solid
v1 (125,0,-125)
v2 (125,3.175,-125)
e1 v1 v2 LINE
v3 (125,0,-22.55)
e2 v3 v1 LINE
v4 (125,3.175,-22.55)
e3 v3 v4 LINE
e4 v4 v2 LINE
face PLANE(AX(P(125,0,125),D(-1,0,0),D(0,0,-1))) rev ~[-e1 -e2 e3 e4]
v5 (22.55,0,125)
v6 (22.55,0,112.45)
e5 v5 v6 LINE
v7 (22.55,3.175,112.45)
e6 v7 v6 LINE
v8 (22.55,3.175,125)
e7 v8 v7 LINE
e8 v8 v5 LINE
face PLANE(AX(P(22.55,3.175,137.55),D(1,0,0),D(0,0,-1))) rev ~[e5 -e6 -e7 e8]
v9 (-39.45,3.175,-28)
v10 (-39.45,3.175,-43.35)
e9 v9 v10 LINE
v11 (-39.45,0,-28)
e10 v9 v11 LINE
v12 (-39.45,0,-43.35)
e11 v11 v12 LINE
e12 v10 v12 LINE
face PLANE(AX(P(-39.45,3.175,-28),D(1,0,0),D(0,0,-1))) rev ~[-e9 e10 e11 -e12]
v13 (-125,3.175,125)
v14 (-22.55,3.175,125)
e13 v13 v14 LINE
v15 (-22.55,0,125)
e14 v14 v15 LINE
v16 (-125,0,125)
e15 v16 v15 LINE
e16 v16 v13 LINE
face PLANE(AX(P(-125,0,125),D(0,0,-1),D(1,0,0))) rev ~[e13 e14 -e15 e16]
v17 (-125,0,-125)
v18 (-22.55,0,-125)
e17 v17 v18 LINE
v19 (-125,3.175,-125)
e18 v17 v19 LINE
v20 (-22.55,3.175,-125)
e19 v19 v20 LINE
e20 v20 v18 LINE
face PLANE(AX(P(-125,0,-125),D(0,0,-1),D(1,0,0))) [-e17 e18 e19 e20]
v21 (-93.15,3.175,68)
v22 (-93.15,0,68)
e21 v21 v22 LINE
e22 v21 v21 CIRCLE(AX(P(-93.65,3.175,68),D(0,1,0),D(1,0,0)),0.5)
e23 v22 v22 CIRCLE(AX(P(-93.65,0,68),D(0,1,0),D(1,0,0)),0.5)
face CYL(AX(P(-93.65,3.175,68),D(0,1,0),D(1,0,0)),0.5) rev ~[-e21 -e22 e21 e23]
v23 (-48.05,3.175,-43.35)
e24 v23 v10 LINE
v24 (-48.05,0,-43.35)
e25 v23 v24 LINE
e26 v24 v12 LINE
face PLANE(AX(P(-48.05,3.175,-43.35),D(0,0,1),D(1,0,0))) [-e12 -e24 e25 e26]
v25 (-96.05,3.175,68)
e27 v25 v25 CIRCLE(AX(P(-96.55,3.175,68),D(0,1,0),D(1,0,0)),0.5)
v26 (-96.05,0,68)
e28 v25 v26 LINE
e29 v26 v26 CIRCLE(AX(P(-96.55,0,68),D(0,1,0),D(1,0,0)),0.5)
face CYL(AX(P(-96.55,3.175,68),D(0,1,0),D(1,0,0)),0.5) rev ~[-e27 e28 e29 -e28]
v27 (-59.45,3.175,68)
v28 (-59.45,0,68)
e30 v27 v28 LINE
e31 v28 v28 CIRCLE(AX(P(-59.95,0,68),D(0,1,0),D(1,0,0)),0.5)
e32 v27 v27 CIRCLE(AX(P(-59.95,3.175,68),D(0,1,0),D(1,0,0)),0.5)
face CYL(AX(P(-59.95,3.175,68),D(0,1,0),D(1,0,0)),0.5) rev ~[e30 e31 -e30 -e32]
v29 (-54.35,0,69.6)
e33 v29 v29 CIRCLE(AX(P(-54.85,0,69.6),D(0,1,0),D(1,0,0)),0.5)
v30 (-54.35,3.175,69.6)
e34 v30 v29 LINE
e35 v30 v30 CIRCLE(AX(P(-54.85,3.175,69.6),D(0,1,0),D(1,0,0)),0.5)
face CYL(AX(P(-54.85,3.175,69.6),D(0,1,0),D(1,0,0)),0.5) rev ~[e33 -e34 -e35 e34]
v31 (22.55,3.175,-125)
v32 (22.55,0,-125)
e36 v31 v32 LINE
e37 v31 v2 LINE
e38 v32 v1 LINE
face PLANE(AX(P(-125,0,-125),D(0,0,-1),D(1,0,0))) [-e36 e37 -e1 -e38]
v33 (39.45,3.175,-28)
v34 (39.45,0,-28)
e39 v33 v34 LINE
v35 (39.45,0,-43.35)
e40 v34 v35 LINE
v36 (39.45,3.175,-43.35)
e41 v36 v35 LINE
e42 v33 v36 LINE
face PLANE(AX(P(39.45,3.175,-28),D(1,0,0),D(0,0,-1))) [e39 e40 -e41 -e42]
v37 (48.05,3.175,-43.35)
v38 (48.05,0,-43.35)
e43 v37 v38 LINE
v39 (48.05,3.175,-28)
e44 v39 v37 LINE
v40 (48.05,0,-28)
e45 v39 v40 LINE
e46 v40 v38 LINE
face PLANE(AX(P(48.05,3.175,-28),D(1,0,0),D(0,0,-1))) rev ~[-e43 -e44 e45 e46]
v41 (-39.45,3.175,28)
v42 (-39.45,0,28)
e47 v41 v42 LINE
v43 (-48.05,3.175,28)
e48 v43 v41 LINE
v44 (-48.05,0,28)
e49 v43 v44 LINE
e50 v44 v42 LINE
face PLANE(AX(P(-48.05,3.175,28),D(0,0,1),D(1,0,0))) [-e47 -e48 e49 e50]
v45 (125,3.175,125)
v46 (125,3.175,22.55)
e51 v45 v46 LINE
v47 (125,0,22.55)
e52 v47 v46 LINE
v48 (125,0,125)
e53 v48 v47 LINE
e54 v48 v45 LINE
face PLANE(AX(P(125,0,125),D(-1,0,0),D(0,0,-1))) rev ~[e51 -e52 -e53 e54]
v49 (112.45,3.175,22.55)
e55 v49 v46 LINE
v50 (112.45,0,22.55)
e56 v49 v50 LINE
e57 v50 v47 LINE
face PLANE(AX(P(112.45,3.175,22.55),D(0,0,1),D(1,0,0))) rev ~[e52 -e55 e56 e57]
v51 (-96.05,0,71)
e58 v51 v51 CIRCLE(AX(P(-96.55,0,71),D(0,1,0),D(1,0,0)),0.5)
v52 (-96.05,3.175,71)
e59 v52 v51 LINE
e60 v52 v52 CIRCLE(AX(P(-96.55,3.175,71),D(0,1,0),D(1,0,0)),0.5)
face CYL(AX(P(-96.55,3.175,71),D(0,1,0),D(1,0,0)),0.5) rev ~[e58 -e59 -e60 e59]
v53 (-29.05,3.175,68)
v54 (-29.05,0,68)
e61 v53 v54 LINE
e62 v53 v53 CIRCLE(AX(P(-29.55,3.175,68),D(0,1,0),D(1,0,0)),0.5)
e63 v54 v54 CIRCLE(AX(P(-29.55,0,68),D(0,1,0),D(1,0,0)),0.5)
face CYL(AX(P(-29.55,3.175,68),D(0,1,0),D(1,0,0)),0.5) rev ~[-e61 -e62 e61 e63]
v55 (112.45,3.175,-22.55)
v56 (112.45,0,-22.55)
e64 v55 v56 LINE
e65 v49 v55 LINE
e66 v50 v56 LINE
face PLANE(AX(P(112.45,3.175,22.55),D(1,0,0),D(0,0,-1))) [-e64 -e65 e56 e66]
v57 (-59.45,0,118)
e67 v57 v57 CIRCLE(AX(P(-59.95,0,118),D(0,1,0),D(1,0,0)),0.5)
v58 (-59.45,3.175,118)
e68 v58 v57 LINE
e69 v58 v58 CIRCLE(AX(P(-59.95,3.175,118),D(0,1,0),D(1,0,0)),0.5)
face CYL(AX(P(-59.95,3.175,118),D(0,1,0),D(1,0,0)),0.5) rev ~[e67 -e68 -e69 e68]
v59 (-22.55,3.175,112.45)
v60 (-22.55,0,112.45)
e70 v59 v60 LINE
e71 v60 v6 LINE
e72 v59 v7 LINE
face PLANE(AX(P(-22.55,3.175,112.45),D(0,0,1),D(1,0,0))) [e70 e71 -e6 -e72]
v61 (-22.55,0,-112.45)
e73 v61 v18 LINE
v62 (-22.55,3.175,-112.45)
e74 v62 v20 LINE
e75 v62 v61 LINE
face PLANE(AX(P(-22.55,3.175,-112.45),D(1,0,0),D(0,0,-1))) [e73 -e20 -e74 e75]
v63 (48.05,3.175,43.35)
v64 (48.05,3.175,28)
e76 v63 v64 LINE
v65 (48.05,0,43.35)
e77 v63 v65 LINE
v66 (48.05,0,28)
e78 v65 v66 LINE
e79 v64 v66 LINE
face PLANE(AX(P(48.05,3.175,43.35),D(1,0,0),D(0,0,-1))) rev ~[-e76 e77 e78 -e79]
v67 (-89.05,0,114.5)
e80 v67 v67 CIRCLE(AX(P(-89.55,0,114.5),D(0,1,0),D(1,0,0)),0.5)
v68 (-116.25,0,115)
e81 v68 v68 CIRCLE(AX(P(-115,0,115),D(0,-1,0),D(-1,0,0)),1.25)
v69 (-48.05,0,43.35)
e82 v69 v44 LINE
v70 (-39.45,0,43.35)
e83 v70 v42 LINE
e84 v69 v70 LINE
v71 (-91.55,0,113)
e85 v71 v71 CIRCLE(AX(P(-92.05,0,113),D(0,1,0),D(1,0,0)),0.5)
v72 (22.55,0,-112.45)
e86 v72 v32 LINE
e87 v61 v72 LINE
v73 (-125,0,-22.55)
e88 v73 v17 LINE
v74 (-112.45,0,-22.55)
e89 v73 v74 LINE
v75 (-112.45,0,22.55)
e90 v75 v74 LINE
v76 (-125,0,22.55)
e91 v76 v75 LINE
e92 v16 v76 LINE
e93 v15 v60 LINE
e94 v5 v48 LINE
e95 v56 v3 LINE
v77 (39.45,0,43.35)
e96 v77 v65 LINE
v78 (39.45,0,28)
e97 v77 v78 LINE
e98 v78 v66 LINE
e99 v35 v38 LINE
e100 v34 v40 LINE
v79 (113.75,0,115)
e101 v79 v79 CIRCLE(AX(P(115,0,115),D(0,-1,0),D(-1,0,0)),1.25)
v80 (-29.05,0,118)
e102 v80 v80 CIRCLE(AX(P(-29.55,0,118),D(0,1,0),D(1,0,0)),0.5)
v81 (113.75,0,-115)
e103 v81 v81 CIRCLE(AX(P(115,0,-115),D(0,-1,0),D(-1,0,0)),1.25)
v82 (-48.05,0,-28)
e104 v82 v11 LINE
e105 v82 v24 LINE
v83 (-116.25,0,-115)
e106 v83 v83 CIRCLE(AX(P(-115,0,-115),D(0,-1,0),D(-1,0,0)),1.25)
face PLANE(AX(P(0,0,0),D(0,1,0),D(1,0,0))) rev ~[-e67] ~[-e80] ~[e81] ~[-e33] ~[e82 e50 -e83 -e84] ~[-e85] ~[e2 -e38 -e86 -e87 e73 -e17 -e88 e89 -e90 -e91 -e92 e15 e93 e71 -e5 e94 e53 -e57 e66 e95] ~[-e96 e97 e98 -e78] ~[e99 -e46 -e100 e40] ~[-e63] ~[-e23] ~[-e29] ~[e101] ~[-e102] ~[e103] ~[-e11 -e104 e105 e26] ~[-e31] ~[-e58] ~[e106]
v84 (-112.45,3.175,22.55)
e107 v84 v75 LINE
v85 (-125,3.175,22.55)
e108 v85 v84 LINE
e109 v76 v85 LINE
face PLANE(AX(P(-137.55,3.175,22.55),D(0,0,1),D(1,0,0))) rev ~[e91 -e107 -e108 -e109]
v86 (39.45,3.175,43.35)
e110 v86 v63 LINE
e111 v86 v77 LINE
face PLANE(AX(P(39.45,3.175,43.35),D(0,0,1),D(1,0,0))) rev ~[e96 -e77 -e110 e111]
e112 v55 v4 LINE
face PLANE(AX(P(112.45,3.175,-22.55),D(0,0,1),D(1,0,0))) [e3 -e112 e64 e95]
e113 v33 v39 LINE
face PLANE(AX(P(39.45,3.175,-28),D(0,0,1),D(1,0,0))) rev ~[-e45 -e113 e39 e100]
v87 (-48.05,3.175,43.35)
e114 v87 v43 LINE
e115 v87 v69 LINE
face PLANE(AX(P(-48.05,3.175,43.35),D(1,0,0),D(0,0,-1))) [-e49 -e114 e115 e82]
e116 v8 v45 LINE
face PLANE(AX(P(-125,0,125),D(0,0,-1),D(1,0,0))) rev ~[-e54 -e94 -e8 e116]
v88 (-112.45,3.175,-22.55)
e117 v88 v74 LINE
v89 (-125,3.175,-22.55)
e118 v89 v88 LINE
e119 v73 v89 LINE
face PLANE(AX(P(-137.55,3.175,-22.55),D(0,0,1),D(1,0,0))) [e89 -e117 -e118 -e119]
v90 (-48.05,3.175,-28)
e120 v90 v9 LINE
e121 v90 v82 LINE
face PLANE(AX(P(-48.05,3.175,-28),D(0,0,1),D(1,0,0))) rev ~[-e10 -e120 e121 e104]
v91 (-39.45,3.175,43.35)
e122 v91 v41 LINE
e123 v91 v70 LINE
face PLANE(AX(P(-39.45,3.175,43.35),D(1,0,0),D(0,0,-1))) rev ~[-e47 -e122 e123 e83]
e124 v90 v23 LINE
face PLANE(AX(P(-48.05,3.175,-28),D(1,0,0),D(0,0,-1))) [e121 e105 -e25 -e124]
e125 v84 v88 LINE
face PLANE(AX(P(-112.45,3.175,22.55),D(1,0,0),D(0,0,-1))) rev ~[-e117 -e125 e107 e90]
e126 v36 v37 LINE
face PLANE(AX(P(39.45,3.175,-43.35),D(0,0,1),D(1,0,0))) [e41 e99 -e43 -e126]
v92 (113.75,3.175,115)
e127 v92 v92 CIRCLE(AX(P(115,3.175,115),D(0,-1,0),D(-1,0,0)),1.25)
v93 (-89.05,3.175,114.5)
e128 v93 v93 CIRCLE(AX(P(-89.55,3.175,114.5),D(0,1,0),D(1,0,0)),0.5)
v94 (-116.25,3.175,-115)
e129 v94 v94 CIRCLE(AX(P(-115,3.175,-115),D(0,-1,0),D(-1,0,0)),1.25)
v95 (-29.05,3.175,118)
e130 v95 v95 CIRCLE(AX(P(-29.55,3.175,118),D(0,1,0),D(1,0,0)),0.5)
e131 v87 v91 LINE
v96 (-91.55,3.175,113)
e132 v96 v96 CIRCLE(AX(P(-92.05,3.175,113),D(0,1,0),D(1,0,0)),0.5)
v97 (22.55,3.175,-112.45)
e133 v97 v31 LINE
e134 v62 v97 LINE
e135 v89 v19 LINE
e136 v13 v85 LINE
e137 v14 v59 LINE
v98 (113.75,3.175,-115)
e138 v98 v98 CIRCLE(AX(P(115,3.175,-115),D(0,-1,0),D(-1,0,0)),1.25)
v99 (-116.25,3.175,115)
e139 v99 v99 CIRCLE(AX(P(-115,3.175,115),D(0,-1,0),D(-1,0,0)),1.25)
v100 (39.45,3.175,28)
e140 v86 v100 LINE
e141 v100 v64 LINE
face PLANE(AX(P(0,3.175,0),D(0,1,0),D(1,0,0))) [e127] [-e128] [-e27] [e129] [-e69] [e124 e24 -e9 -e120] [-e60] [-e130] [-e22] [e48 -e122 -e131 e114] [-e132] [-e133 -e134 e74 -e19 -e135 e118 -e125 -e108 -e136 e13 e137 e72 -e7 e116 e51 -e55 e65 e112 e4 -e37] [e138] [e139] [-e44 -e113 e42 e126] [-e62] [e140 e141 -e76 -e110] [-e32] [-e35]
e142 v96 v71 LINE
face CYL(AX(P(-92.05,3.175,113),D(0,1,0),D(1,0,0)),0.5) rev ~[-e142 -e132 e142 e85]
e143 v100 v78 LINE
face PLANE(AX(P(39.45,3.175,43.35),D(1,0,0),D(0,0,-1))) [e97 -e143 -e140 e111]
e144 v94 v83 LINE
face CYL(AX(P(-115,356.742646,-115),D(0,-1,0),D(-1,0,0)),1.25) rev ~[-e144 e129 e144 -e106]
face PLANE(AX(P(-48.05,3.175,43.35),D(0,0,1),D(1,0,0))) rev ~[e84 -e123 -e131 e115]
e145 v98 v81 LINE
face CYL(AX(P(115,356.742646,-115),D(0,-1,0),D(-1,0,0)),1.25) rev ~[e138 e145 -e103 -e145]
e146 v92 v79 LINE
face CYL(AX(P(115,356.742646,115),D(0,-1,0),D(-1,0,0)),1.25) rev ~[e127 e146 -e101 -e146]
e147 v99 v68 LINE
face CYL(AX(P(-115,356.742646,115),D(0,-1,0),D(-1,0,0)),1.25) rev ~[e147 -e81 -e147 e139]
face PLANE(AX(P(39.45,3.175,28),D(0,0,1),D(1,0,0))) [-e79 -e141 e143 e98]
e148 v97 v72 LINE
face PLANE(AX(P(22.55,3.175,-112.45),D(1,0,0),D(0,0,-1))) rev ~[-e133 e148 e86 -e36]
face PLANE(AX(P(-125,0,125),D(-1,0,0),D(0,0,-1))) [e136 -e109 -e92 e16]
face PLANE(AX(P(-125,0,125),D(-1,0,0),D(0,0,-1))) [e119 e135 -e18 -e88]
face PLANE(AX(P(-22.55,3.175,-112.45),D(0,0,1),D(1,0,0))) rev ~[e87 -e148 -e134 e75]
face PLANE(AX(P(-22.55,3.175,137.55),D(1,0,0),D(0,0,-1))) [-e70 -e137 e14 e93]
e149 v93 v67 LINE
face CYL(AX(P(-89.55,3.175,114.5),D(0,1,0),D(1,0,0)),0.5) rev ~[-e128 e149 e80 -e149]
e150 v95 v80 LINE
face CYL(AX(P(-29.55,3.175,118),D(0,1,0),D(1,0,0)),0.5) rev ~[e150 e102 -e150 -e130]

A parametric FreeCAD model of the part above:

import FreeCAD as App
import Part
import Sketcher
from FreeCAD import Vector


def add_polygon(sketch, points):
    """Adds a closed chain of lines whose ends are joined by coincident constraints."""
    first, n = sketch.GeometryCount, len(points)
    for a, b in zip(points, points[1:] + points[:1]):
        sketch.addGeometry(Part.LineSegment(App.Vector(*a, 0), App.Vector(*b, 0)), False)
    for i in range(n):
        sketch.addConstraint(Sketcher.Constraint("Coincident", first + i, 2, first + (i + 1) % n, 1))

doc = App.newDocument("Part")
body = doc.addObject("PartDesign::Body", "Body")

sketch1 = body.newObject("Sketcher::SketchObject", "Sketch")
sketch1.AttachmentSupport = (doc.getObject("XZ_Plane"), [""])
sketch1.MapMode = "FlatFace"
add_polygon(sketch1, [(-125, -125), (-125, 125), (125, 125), (125, -125)])
sketch1.addConstraint([
    Sketcher.Constraint("Vertical", 0),
    Sketcher.Constraint("Horizontal", 1),
    Sketcher.Constraint("Vertical", 2),
    Sketcher.Constraint("Horizontal", 3),
    Sketcher.Constraint("Symmetric", 0, 2, 2, 2, -1, 1),
    Sketcher.Constraint("Equal", 3, 0),
    Sketcher.Constraint("DistanceX", 1, 1, 1, 2, 250.0),
])
pad1 = body.newObject("PartDesign::Pad", "Pad")
pad1.Profile = sketch1
pad1.Length = 3.175
pad1.Reversed = True

sketch2 = body.newObject("Sketcher::SketchObject", "Sketch001")
sketch2.AttachmentSupport = (doc.getObject("XZ_Plane"), [""])
sketch2.MapMode = "FlatFace"
sketch2.AttachmentOffset = App.Placement(Vector(0, 0, -3.175), App.Rotation())
add_polygon(sketch2, [(-48.05, -43.35), (-48.05, -28), (-39.45, -28), (-39.45, -43.35)])
add_polygon(sketch2, [(-48.05, 28), (-48.05, 43.35), (-39.45, 43.35), (-39.45, 28)])
add_polygon(sketch2, [(39.45, 28), (39.45, 43.35), (48.05, 43.35), (48.05, 28)])
add_polygon(sketch2, [(39.45, -43.35), (39.45, -28), (48.05, -28), (48.05, -43.35)])
sketch2.addConstraint([
    Sketcher.Constraint("Vertical", 0),
    Sketcher.Constraint("Horizontal", 1),
    Sketcher.Constraint("Vertical", 2),
    Sketcher.Constraint("Horizontal", 3),
    Sketcher.Constraint("Vertical", 4),
    Sketcher.Constraint("Horizontal", 5),
    Sketcher.Constraint("Vertical", 6),
    Sketcher.Constraint("Horizontal", 7),
    Sketcher.Constraint("Vertical", 8),
    Sketcher.Constraint("Horizontal", 9),
    Sketcher.Constraint("Vertical", 10),
    Sketcher.Constraint("Horizontal", 11),
    Sketcher.Constraint("Vertical", 12),
    Sketcher.Constraint("Horizontal", 13),
    Sketcher.Constraint("Vertical", 14),
    Sketcher.Constraint("Horizontal", 15),
    Sketcher.Constraint("Symmetric", 2, 2, 8, 2, -1, 1),
    Sketcher.Constraint("Symmetric", 0, 2, 10, 2, -1, 1),
    Sketcher.Constraint("Symmetric", 6, 2, 12, 2, -1, 1),
    Sketcher.Constraint("Symmetric", 4, 2, 14, 2, -1, 1),
    Sketcher.Constraint("Symmetric", 5, 2, 8, 2, -2),
    Sketcher.Constraint("Symmetric", 7, 2, 10, 2, -2),
    Sketcher.Constraint("DistanceX", 1, 1, 1, 2, 8.6),
    Sketcher.Constraint("DistanceY", 0, 2, -1, 1, 28.0),
    Sketcher.Constraint("DistanceY", 0, 1, 0, 2, 15.35),
    Sketcher.Constraint("DistanceX", 5, 2, 8, 2, 78.9),
])
pocket1 = body.newObject("PartDesign::Pocket", "Pocket")
pocket1.Profile = sketch2
pocket1.Length = 10
pocket1.Reversed = True

sketch3 = body.newObject("Sketcher::SketchObject", "Sketch002")
sketch3.AttachmentSupport = (doc.getObject("XZ_Plane"), [""])
sketch3.MapMode = "FlatFace"
sketch3.AttachmentOffset = App.Placement(Vector(0, 0, -3.175), App.Rotation())
add_polygon(sketch3, [(-22.55, -137.55), (-22.55, -112.45), (22.55, -112.45), (22.55, -137.55)])
add_polygon(sketch3, [(112.45, -22.55), (112.45, 22.55), (137.55, 22.55), (137.55, -22.55)])
add_polygon(sketch3, [(-22.55, 112.45), (-22.55, 137.55), (22.55, 137.55), (22.55, 112.45)])
add_polygon(sketch3, [(-137.55, -22.55), (-137.55, 22.55), (-112.45, 22.55), (-112.45, -22.55)])
sketch3.addConstraint([
    Sketcher.Constraint("Vertical", 0),
    Sketcher.Constraint("Horizontal", 1),
    Sketcher.Constraint("Vertical", 2),
    Sketcher.Constraint("Horizontal", 3),
    Sketcher.Constraint("Vertical", 4),
    Sketcher.Constraint("Horizontal", 5),
    Sketcher.Constraint("Vertical", 6),
    Sketcher.Constraint("Horizontal", 7),
    Sketcher.Constraint("Vertical", 8),
    Sketcher.Constraint("Horizontal", 9),
    Sketcher.Constraint("Vertical", 10),
    Sketcher.Constraint("Horizontal", 11),
    Sketcher.Constraint("Vertical", 12),
    Sketcher.Constraint("Horizontal", 13),
    Sketcher.Constraint("Vertical", 14),
    Sketcher.Constraint("Horizontal", 15),
    Sketcher.Constraint("Symmetric", 2, 2, 8, 2, -1, 1),
    Sketcher.Constraint("Symmetric", 0, 2, 10, 2, -1, 1),
    Sketcher.Constraint("Symmetric", 6, 2, 12, 2, -1, 1),
    Sketcher.Constraint("Symmetric", 4, 2, 14, 2, -1, 1),
    Sketcher.Constraint("Horizontal", 5, 2, 12, 2),
    Sketcher.Constraint("Vertical", 3, 2, 8, 2),
    Sketcher.Constraint("Equal", 15, 0),
    Sketcher.Constraint("Equal", 11, 4),
    Sketcher.Constraint("DistanceX", 1, 1, 1, 2, 45.1),
    Sketcher.Constraint("DistanceX", 5, 1, 5, 2, 25.1),
    Sketcher.Constraint("DistanceY", 1, 2, 4, 2, 135.0),
    Sketcher.Constraint("DistanceX", 0, 2, 4, 2, 135.0),
])
pocket2 = body.newObject("PartDesign::Pocket", "Pocket001")
pocket2.Profile = sketch3
pocket2.Length = 10
pocket2.Reversed = True

sketch4 = body.newObject("Sketcher::SketchObject", "Sketch003")
sketch4.AttachmentSupport = (doc.getObject("XZ_Plane"), [""])
sketch4.MapMode = "FlatFace"
sketch4.AttachmentOffset = App.Placement(Vector(0, 0, -3.175), App.Rotation())
sketch4.addGeometry(Part.Circle(Vector(-115, -115, 0), Vector(0, 0, 1), 1.25), False)
sketch4.addConstraint([
    Sketcher.Constraint("Diameter", 0, 2.5),
    Sketcher.Constraint("DistanceX", 0, 3, -1, 1, 115.0),
    Sketcher.Constraint("DistanceY", 0, 3, -1, 1, 115.0),
])
doc.recompute()
hole = body.newObject("PartDesign::Hole", "Hole")
hole.Profile = sketch4
hole.ThreadType = "None"
hole.Diameter = 2.5
hole.DepthType = "ThroughAll"
hole.Reversed = True

sketch5 = body.newObject("Sketcher::SketchObject", "Sketch004")
sketch5.AttachmentSupport = (doc.getObject("XZ_Plane"), [""])
sketch5.MapMode = "FlatFace"
sketch5.AttachmentOffset = App.Placement(Vector(0, 0, -3.175), App.Rotation())
sketch5.addGeometry([
    Part.Circle(Vector(115, -115, 0), Vector(0, 0, 1), 1.25),
    Part.Circle(Vector(115, 115, 0), Vector(0, 0, 1), 1.25),
    Part.Circle(Vector(-115, 115, 0), Vector(0, 0, 1), 1.25),
], False)
sketch5.addConstraint([
    Sketcher.Constraint("Equal", 0, 1),
    Sketcher.Constraint("Equal", 1, 2),
    Sketcher.Constraint("Symmetric", 0, 3, 2, 3, -1, 1),
    Sketcher.Constraint("Symmetric", 1, 3, 2, 3, -2),
    Sketcher.Constraint("Diameter", 0, 2.5),
    Sketcher.Constraint("DistanceX", -1, 1, 0, 3, 115.0),
    Sketcher.Constraint("DistanceY", 0, 3, -1, 1, 115.0),
])
doc.recompute()
hole2 = body.newObject("PartDesign::Hole", "Hole001")
hole2.Profile = sketch5
hole2.ThreadType = "None"
hole2.Diameter = 2.5
hole2.DepthType = "ThroughAll"
hole2.Reversed = True

sketch6 = body.newObject("Sketcher::SketchObject", "Sketch005")
sketch6.AttachmentSupport = (doc.getObject("XZ_Plane"), [""])
sketch6.MapMode = "FlatFace"
sketch6.AttachmentOffset = App.Placement(Vector(0, 0, -3.175), App.Rotation())
sketch6.addGeometry([
    Part.Circle(Vector(-92.05, 113, 0), Vector(0, 0, 1), 0.5),
    Part.Circle(Vector(-89.55, 114.5, 0), Vector(0, 0, 1), 0.5),
    Part.Circle(Vector(-59.95, 118, 0), Vector(0, 0, 1), 0.5),
    Part.Circle(Vector(-29.55, 118, 0), Vector(0, 0, 1), 0.5),
    Part.Circle(Vector(-29.55, 68, 0), Vector(0, 0, 1), 0.5),
    Part.Circle(Vector(-54.85, 69.6, 0), Vector(0, 0, 1), 0.5),
    Part.Circle(Vector(-59.95, 68, 0), Vector(0, 0, 1), 0.5),
    Part.Circle(Vector(-96.55, 68, 0), Vector(0, 0, 1), 0.5),
    Part.Circle(Vector(-93.65, 68, 0), Vector(0, 0, 1), 0.5),
    Part.Circle(Vector(-96.55, 71, 0), Vector(0, 0, 1), 0.5),
], False)
sketch6.addConstraint([
    Sketcher.Constraint("Equal", 0, 1),
    Sketcher.Constraint("Equal", 1, 2),
    Sketcher.Constraint("Equal", 2, 3),
    Sketcher.Constraint("Equal", 3, 4),
    Sketcher.Constraint("Equal", 4, 5),
    Sketcher.Constraint("Equal", 5, 6),
    Sketcher.Constraint("Equal", 6, 7),
    Sketcher.Constraint("Equal", 7, 8),
    Sketcher.Constraint("Equal", 8, 9),
    Sketcher.Constraint("Horizontal", 2, 3, 3, 3),
    Sketcher.Constraint("Horizontal", 4, 3, 6, 3),
    Sketcher.Constraint("Horizontal", 6, 3, 7, 3),
    Sketcher.Constraint("Horizontal", 7, 3, 8, 3),
    Sketcher.Constraint("Vertical", 3, 3, 4, 3),
    Sketcher.Constraint("Vertical", 2, 3, 6, 3),
    Sketcher.Constraint("Vertical", 7, 3, 9, 3),
    Sketcher.Constraint("Diameter", 0, 1.0),
    Sketcher.Constraint("DistanceY", -1, 1, 0, 3, 113.0),
    Sketcher.Constraint("DistanceY", -1, 1, 2, 3, 118.0),
    Sketcher.Constraint("DistanceY", -1, 1, 4, 3, 68.0),
    Sketcher.Constraint("DistanceY", -1, 1, 9, 3, 71.0),
    Sketcher.Constraint("DistanceX", 1, 3, 3, 3, 60.0),
    Sketcher.Constraint("DistanceX", 7, 3, 1, 3, 7.0),
    Sketcher.Constraint("DistanceY", -1, 1, 1, 3, 114.5),
    Sketcher.Constraint("DistanceY", -1, 1, 5, 3, 69.6),
    Sketcher.Constraint("DistanceX", 0, 3, 1, 3, 2.5),
    Sketcher.Constraint("DistanceX", 1, 3, 2, 3, 29.6),
    Sketcher.Constraint("DistanceX", 5, 3, 4, 3, 25.3),
    Sketcher.Constraint("DistanceX", 7, 3, 8, 3, 2.9),
    Sketcher.Constraint("DistanceX", 0, 3, -1, 1, 92.05),
])
pocket3 = body.newObject("PartDesign::Pocket", "Pocket002")
pocket3.Profile = sketch6
pocket3.Type = "ThroughAll"
pocket3.Reversed = True

doc.recompute()
